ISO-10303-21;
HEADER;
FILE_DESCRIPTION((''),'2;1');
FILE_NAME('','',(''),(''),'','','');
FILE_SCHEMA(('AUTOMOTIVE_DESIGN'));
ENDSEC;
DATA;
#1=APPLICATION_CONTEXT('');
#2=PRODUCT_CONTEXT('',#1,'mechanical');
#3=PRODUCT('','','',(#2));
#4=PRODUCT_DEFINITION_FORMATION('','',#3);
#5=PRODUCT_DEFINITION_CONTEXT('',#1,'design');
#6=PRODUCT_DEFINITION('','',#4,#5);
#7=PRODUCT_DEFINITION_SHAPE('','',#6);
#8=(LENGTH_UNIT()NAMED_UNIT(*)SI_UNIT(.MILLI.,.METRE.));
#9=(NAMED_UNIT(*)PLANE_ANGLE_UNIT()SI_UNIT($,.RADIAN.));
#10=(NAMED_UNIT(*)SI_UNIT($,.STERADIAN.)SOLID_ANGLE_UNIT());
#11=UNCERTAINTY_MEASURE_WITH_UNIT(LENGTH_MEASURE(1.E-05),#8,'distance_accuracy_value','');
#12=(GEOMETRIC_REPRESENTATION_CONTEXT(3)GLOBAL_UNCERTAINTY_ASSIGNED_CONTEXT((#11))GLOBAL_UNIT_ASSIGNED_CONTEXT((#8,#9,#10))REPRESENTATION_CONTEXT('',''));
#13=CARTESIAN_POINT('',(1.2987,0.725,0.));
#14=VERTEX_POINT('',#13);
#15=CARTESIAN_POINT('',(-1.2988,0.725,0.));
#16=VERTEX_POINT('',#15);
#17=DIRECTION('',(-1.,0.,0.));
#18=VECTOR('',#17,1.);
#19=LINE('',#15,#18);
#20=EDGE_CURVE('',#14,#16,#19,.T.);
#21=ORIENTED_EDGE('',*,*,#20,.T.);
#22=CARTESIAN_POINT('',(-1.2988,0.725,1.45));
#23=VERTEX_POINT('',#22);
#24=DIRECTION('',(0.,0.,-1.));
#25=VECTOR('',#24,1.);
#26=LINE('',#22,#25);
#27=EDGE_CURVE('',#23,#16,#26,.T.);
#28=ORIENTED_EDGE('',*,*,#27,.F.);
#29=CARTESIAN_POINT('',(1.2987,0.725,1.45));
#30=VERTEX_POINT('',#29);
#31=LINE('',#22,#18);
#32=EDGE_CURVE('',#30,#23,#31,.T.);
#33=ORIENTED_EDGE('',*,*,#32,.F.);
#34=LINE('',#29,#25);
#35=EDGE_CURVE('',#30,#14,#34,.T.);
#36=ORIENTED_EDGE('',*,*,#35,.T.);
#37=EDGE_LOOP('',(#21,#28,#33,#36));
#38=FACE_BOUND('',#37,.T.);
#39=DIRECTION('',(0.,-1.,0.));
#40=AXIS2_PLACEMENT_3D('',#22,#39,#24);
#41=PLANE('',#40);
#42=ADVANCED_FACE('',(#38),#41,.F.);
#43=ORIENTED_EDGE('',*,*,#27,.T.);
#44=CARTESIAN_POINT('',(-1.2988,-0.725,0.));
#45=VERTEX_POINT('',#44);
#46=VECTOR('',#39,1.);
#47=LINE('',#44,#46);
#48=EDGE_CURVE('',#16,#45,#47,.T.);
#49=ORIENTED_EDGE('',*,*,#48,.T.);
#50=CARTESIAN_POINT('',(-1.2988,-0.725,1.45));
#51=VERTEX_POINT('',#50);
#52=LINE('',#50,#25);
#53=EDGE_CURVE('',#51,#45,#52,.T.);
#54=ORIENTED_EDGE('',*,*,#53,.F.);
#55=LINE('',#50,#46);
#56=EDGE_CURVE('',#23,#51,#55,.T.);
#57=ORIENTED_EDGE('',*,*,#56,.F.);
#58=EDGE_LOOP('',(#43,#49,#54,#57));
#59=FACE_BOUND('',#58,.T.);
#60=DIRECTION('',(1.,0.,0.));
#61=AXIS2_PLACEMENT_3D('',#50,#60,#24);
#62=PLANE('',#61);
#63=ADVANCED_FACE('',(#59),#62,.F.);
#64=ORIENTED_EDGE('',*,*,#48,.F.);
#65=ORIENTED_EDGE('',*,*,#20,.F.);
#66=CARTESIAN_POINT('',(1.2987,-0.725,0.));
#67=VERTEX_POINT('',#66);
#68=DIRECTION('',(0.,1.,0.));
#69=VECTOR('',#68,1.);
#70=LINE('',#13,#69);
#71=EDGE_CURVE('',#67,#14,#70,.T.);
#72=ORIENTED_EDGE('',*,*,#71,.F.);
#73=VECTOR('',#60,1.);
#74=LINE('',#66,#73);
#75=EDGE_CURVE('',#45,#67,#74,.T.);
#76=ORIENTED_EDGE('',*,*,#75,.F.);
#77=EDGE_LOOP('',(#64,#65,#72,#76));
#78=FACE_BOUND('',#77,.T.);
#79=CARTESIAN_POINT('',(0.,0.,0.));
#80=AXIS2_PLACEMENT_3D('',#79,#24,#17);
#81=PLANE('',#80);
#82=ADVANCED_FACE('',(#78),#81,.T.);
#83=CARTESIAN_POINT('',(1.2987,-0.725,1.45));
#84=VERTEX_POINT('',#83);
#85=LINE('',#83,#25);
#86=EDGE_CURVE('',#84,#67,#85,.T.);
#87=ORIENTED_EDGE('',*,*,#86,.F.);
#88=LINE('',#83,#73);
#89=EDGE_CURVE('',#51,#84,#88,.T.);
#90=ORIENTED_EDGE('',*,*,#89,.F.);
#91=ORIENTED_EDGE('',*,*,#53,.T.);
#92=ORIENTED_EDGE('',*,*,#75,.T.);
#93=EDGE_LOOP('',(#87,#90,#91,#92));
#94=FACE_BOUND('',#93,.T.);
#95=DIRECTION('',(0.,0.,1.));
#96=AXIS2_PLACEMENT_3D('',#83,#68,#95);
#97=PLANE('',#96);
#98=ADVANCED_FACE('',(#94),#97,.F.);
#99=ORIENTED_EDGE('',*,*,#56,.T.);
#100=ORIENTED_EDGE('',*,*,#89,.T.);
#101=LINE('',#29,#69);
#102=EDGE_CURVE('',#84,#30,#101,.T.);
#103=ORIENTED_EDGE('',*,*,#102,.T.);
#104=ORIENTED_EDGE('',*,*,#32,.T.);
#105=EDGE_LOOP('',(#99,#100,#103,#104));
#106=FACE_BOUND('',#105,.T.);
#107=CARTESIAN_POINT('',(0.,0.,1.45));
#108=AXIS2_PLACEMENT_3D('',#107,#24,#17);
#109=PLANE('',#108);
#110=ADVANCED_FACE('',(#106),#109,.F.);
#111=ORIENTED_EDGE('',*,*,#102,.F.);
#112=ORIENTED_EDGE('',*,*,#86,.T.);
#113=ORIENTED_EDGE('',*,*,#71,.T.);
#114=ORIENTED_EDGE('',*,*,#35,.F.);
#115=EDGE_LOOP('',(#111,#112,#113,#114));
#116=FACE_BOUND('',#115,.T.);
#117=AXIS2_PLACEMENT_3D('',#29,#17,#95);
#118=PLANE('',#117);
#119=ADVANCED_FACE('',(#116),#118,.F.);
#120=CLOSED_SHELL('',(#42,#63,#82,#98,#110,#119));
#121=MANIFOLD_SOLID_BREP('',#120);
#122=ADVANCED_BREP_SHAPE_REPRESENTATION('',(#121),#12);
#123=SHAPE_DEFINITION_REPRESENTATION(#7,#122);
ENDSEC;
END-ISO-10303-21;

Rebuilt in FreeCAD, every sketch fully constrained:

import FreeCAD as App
import Part
import Sketcher
Q = App.Units.Quantity

doc = App.newDocument("Part")
params = doc.addObject("Spreadsheet::Sheet", "Params")
for row, (alias, value) in enumerate([
    ("sketch1_height", "1.45 mm"),
    ("pad1_length", "1.45 mm"),
], start=1):
    params.set(f"A{row}", alias)
    params.set(f"B{row}", "=" + value)
    params.setAlias(f"B{row}", alias)

body = doc.addObject("PartDesign::Body", "Body")

# Sketch on XY plane
sketch1 = body.newObject("Sketcher::SketchObject", "Sketch")
sketch1.AttachmentSupport = (doc.getObject("XY_Plane"), [""])
sketch1.MapMode = "FlatFace"
sketch1.addGeometry([
    Part.LineSegment(App.Vector(-1.3, 0.7, 0), App.Vector(-1.3, -0.7, 0)),
    Part.LineSegment(App.Vector(-1.3, -0.7, 0), App.Vector(1.3, -0.7, 0)),
    Part.LineSegment(App.Vector(1.3, -0.7, 0), App.Vector(1.3, 0.7, 0)),
    Part.LineSegment(App.Vector(1.3, 0.7, 0), App.Vector(-1.3, 0.7, 0)),
], False)
sketch1.addConstraint([
    Sketcher.Constraint("Coincident", 0, 2, 1, 1),
    Sketcher.Constraint("Coincident", 1, 2, 2, 1),
    Sketcher.Constraint("Coincident", 2, 2, 3, 1),
    Sketcher.Constraint("Coincident", 3, 2, 0, 1),
    Sketcher.Constraint("Vertical", 0),
    Sketcher.Constraint("Horizontal", 1),
    Sketcher.Constraint("Vertical", 2),
    Sketcher.Constraint("Horizontal", 3),
    Sketcher.Constraint("DistanceY", 0, 2, 0, 1, Q("1.45 mm")),
    Sketcher.Constraint("DistanceX", 1, 1, 1, 2, Q("2.5975 mm")),
    Sketcher.Constraint("DistanceY", 0, 2, -1, 1, Q("0.725 mm")),
    Sketcher.Constraint("DistanceX", 0, 2, -1, 1, Q("1.2988 mm")),
])
sketch1.setExpression("Constraints[8]", "Params.sketch1_height")
pad1 = body.newObject("PartDesign::Pad", "Pad")
pad1.Profile = sketch1
pad1.setExpression("Length", "Params.pad1_length")

doc.recompute()
